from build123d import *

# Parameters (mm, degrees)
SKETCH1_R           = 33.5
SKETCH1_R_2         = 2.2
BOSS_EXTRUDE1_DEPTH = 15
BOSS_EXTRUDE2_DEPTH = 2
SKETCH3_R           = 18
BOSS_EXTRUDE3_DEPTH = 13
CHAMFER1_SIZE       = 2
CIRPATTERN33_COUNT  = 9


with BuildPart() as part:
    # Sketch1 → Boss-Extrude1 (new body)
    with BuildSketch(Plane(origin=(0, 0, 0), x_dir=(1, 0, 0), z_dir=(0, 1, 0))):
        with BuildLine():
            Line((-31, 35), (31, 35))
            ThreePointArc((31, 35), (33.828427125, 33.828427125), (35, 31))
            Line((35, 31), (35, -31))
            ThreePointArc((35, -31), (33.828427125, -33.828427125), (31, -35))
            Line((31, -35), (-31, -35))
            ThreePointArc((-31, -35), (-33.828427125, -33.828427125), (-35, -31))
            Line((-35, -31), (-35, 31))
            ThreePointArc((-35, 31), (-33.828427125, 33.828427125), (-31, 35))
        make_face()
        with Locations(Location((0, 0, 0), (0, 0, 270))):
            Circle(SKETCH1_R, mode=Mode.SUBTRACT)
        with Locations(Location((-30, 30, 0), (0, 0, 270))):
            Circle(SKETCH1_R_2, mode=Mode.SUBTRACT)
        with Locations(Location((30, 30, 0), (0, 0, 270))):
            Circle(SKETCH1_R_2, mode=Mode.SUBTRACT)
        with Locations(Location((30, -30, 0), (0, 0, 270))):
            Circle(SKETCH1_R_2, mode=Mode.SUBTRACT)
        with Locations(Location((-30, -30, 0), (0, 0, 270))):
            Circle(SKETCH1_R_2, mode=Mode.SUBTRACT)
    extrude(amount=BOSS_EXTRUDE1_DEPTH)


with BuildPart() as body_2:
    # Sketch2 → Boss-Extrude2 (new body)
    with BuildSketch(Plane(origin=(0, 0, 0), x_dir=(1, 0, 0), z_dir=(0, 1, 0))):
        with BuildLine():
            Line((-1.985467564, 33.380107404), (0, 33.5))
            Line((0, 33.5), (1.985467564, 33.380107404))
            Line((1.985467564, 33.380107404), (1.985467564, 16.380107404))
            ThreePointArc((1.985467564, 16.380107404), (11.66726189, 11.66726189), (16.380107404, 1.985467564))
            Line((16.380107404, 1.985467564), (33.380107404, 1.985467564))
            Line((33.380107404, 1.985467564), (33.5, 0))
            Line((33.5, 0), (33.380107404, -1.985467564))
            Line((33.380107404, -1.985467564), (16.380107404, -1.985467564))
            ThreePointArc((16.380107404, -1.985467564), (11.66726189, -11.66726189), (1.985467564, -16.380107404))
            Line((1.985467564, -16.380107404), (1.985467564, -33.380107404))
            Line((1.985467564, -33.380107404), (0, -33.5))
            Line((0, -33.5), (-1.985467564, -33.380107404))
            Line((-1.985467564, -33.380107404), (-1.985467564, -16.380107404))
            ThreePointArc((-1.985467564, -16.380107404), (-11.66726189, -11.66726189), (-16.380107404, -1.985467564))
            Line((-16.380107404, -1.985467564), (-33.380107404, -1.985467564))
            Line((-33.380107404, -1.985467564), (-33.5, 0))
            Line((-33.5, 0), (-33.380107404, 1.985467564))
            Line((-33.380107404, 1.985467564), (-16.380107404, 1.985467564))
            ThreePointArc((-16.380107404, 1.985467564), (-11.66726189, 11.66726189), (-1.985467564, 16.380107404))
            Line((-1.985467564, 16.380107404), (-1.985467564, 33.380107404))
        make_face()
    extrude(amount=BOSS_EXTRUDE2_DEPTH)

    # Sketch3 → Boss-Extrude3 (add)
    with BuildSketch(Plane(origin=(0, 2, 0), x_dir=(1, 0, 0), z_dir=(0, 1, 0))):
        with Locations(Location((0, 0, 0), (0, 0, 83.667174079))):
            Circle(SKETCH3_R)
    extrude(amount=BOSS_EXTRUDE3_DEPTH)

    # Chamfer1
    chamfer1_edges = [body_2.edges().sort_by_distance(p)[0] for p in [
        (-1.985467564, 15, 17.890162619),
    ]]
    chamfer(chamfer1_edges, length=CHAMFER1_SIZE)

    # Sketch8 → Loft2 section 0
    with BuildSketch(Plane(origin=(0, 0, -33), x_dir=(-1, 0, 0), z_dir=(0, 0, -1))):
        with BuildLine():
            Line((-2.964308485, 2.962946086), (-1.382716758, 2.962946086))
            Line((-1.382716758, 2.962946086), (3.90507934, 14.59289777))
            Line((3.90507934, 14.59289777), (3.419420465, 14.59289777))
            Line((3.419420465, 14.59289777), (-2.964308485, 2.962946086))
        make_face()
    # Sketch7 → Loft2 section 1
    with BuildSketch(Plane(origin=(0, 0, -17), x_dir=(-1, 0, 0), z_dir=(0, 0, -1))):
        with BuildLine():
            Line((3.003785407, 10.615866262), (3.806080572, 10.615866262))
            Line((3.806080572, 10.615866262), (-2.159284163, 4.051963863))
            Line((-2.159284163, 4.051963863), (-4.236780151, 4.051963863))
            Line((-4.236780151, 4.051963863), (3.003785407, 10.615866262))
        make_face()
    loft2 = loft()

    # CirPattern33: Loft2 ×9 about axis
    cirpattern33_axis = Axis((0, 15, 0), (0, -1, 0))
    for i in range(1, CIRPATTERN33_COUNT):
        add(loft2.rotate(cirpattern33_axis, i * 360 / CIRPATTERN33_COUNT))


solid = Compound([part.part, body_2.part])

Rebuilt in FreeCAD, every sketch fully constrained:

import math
import FreeCAD as App
import Part
import Sketcher
from FreeCAD import Vector


def edges_at(feature, points):
    """Names of the edges that pass closest to the given points."""
    edges = feature.Shape.Edges
    near = lambda p: min(range(len(edges)), key=lambda i: edges[i].distToShape(Part.Vertex(*p))[0])
    return sorted({f"Edge{near(p) + 1}" for p in points})


def add_polygon(sketch, points):
    """Adds a closed chain of lines whose ends are joined by coincident constraints."""
    first, n = sketch.GeometryCount, len(points)
    for a, b in zip(points, points[1:] + points[:1]):
        sketch.addGeometry(Part.LineSegment(App.Vector(*a, 0), App.Vector(*b, 0)), False)
    for i in range(n):
        sketch.addConstraint(Sketcher.Constraint("Coincident", first + i, 2, first + (i + 1) % n, 1))

doc = App.newDocument("Part")
body = doc.addObject("PartDesign::Body", "Body")

sketch1 = doc.addObject("Sketcher::SketchObject", "Sketch")
body.addObject(sketch1)
sketch1.AttachmentSupport = (doc.XZ_Plane, [""])
sketch1.MapMode = "FlatFace"
sketch1.addGeometry([
    Part.LineSegment(Vector(31, -35, 0), Vector(-31, -35, 0)),
    Part.ArcOfCircle(Part.Circle(Vector(-31, -31, 0), Vector(0, 0, 1), 4), math.radians(180), math.radians(270)),
    Part.LineSegment(Vector(-35, -31, 0), Vector(-35, 31, 0)),
    Part.ArcOfCircle(Part.Circle(Vector(-31, 31, 0), Vector(0, 0, 1), 4), math.radians(90), math.radians(180)),
    Part.LineSegment(Vector(-31, 35, 0), Vector(31, 35, 0)),
    Part.ArcOfCircle(Part.Circle(Vector(31, 31, 0), Vector(0, 0, 1), 4), math.radians(0), math.radians(90)),
    Part.LineSegment(Vector(35, 31, 0), Vector(35, -31, 0)),
    Part.ArcOfCircle(Part.Circle(Vector(31, -31, 0), Vector(0, 0, 1), 4), math.radians(-90), math.radians(0)),
    Part.Circle(Vector(30, 30, 0), Vector(0, 0, 1), 2.2),
    Part.Circle(Vector(-30, 30, 0), Vector(0, 0, 1), 2.2),
    Part.Circle(Vector(30, -30, 0), Vector(0, 0, 1), 2.2),
    Part.Circle(Vector(0, 0, 0), Vector(0, 0, 1), 33.5),
    Part.Circle(Vector(-30, -30, 0), Vector(0, 0, 1), 2.2),
], False)
sketch1.addConstraint([
    Sketcher.Constraint("Tangent", 0, 2, 1, 2),
    Sketcher.Constraint("Tangent", 1, 1, 2, 1),
    Sketcher.Constraint("Tangent", 2, 2, 3, 2),
    Sketcher.Constraint("Tangent", 3, 1, 4, 1),
    Sketcher.Constraint("Tangent", 4, 2, 5, 2),
    Sketcher.Constraint("Tangent", 5, 1, 6, 1),
    Sketcher.Constraint("Tangent", 6, 2, 7, 2),
    Sketcher.Constraint("Tangent", 7, 1, 0, 1),
    Sketcher.Constraint("Horizontal", 0),
    Sketcher.Constraint("Vertical", 2),
    Sketcher.Constraint("Horizontal", 4),
    Sketcher.Constraint("Vertical", 6),
    Sketcher.Constraint("Coincident", 11, 3, -1, 1),
    Sketcher.Constraint("Equal", 1, 3),
    Sketcher.Constraint("Equal", 3, 5),
    Sketcher.Constraint("Equal", 5, 7),
    Sketcher.Constraint("Equal", 8, 9),
    Sketcher.Constraint("Equal", 9, 10),
    Sketcher.Constraint("Equal", 10, 12),
    Sketcher.Constraint("Symmetric", 1, 3, 5, 3, -1, 1),
    Sketcher.Constraint("Symmetric", 9, 3, 10, 3, -1, 1),
    Sketcher.Constraint("Symmetric", 8, 3, 12, 3, -1, 1),
    Sketcher.Constraint("Symmetric", 8, 3, 9, 3, -2),
    Sketcher.Constraint("Equal", 4, 2),
    Sketcher.Constraint("Diameter", 11, 67.0),
    Sketcher.Constraint("Radius", 1, 4.0),
    Sketcher.Constraint("Diameter", 8, 4.4),
    Sketcher.Constraint("DistanceX", 0, 2, 0, 1, 62.0),
    Sketcher.Constraint("DistanceX", -1, 1, 8, 3, 30.0),
    Sketcher.Constraint("DistanceY", -1, 1, 8, 3, 30.0),
])
pad1 = doc.addObject("PartDesign::Pad", "Pad")
body.addObject(pad1)
pad1.Profile = sketch1
pad1.Length = 15
pad1.Reversed = True
body2 = doc.addObject("PartDesign::Body", "Body001")

sketch2 = doc.addObject("Sketcher::SketchObject", "Sketch001")
body2.addObject(sketch2)
sketch2.AttachmentSupport = (doc.getObject("XZ_Plane001"), [""])
sketch2.MapMode = "FlatFace"
sketch2.addGeometry([
    Part.LineSegment(Vector(0, -33.5, 0), Vector(-2, -33.4, 0)),
    Part.LineSegment(Vector(-2, -33.4, 0), Vector(-2, -16.4, 0)),
    Part.ArcOfCircle(Part.Circle(Vector(0, 0, 0), Vector(0, 0, 1), 16.5), math.radians(-173), math.radians(-97)),
    Part.LineSegment(Vector(-16.4, -2, 0), Vector(-33.4, -2, 0)),
    Part.LineSegment(Vector(-33.4, -2, 0), Vector(-33.5, 0, 0)),
    Part.LineSegment(Vector(-33.5, 0, 0), Vector(-33.4, 2, 0)),
    Part.LineSegment(Vector(-33.4, 2, 0), Vector(-16.4, 2, 0)),
    Part.ArcOfCircle(Part.Circle(Vector(0, 0, 0), Vector(0, 0, 1), 16.5), math.radians(97), math.radians(173)),
    Part.LineSegment(Vector(-2, 16.4, 0), Vector(-2, 33.4, 0)),
    Part.LineSegment(Vector(-2, 33.4, 0), Vector(0, 33.5, 0)),
    Part.LineSegment(Vector(0, 33.5, 0), Vector(2, 33.4, 0)),
    Part.LineSegment(Vector(2, 33.4, 0), Vector(2, 16.4, 0)),
    Part.ArcOfCircle(Part.Circle(Vector(0, 0, 0), Vector(0, 0, 1), 16.5), math.radians(7), math.radians(83)),
    Part.LineSegment(Vector(16.4, 2, 0), Vector(33.4, 2, 0)),
    Part.LineSegment(Vector(33.4, 2, 0), Vector(33.5, 0, 0)),
    Part.LineSegment(Vector(33.5, 0, 0), Vector(33.4, -2, 0)),
    Part.LineSegment(Vector(33.4, -2, 0), Vector(16.4, -2, 0)),
    Part.ArcOfCircle(Part.Circle(Vector(0, 0, 0), Vector(0, 0, 1), 16.5), math.radians(-83), math.radians(-7)),
    Part.LineSegment(Vector(2, -16.4, 0), Vector(2, -33.4, 0)),
    Part.LineSegment(Vector(2, -33.4, 0), Vector(0, -33.5, 0)),
], False)
sketch2.addConstraint([
    Sketcher.Constraint("Coincident", 0, 2, 1, 1),
    Sketcher.Constraint("Coincident", 1, 2, 2, 2),
    Sketcher.Constraint("Coincident", 2, 1, 3, 1),
    Sketcher.Constraint("Coincident", 3, 2, 4, 1),
    Sketcher.Constraint("Coincident", 4, 2, 5, 1),
    Sketcher.Constraint("Coincident", 5, 2, 6, 1),
    Sketcher.Constraint("Coincident", 6, 2, 7, 2),
    Sketcher.Constraint("Coincident", 7, 1, 8, 1),
    Sketcher.Constraint("Coincident", 8, 2, 9, 1),
    Sketcher.Constraint("Coincident", 9, 2, 10, 1),
    Sketcher.Constraint("Coincident", 10, 2, 11, 1),
    Sketcher.Constraint("Coincident", 11, 2, 12, 2),
    Sketcher.Constraint("Coincident", 12, 1, 13, 1),
    Sketcher.Constraint("Coincident", 13, 2, 14, 1),
    Sketcher.Constraint("Coincident", 14, 2, 15, 1),
    Sketcher.Constraint("Coincident", 15, 2, 16, 1),
    Sketcher.Constraint("Coincident", 16, 2, 17, 2),
    Sketcher.Constraint("Coincident", 17, 1, 18, 1),
    Sketcher.Constraint("Coincident", 18, 2, 19, 1),
    Sketcher.Constraint("Coincident", 19, 2, 0, 1),
    Sketcher.Constraint("Vertical", 1),
    Sketcher.Constraint("Horizontal", 3),
    Sketcher.Constraint("Horizontal", 6),
    Sketcher.Constraint("Vertical", 8),
    Sketcher.Constraint("Vertical", 11),
    Sketcher.Constraint("Horizontal", 13),
    Sketcher.Constraint("Horizontal", 16),
    Sketcher.Constraint("Vertical", 18),
    Sketcher.Constraint("Coincident", 2, 3, -1, 1),
    Sketcher.Constraint("Coincident", 7, 3, -1, 1),
    Sketcher.Constraint("Coincident", 12, 3, -1, 1),
    Sketcher.Constraint("Coincident", 17, 3, -1, 1),
    Sketcher.Constraint("Equal", 2, 7),
    Sketcher.Constraint("Equal", 7, 12),
    Sketcher.Constraint("Equal", 12, 17),
    Sketcher.Constraint("Symmetric", 0, 2, 10, 2, -1, 1),
    Sketcher.Constraint("Symmetric", 3, 2, 13, 2, -1, 1),
    Sketcher.Constraint("Symmetric", 4, 2, 14, 2, -1, 1),
    Sketcher.Constraint("Symmetric", 5, 2, 15, 2, -1, 1),
    Sketcher.Constraint("Symmetric", 8, 2, 18, 2, -1, 1),
    Sketcher.Constraint("Symmetric", 9, 2, 19, 2, -1, 1),
    Sketcher.Constraint("Symmetric", 8, 2, 10, 2, -2),
    Sketcher.Constraint("Symmetric", 5, 2, 13, 2, -2),
    Sketcher.Constraint("PointOnObject", 4, 2, -1),
    Sketcher.Constraint("PointOnObject", 9, 2, -2),
    Sketcher.Constraint("Perpendicular", 0, 5),
    Sketcher.Constraint("Equal", 16, 1),
    Sketcher.Constraint("Equal", 0, 4),
    Sketcher.Constraint("Radius", 2, 16.5),
    Sketcher.Constraint("DistanceX", 3, 2, 3, 1, 17.0),
    Sketcher.Constraint("DistanceX", 4, 2, -1, 1, 33.5),
    Sketcher.Constraint("DistanceX", 2, 1, 1, 2, 14.39464),
])
pad2 = doc.addObject("PartDesign::Pad", "Pad001")
body2.addObject(pad2)
pad2.Profile = sketch2
pad2.Length = 2
pad2.Reversed = True

sketch3 = doc.addObject("Sketcher::SketchObject", "Sketch002")
body2.addObject(sketch3)
sketch3.AttachmentSupport = (doc.getObject("XZ_Plane001"), [""])
sketch3.MapMode = "FlatFace"
sketch3.AttachmentOffset = App.Placement(Vector(0, 0, -2), App.Rotation())
sketch3.addGeometry(Part.Circle(Vector(0, 0, 0), Vector(0, 0, 1), 18), False)
sketch3.addConstraint([
    Sketcher.Constraint("Coincident", 0, 3, -1, 1),
    Sketcher.Constraint("Diameter", 0, 36.0),
])
pad3 = doc.addObject("PartDesign::Pad", "Pad002")
body2.addObject(pad3)
pad3.Profile = sketch3
pad3.Length = 13
pad3.Reversed = True
doc.recompute()

chamfer = doc.addObject("PartDesign::Chamfer", "Chamfer")
body2.addObject(chamfer)
chamfer.Base = (pad3, edges_at(pad3, [(-1.985, 15, 17.89)]))
chamfer.Size = 2

sketch4 = doc.addObject("Sketcher::SketchObject", "Sketch003")
body2.addObject(sketch4)
sketch4.AttachmentSupport = (doc.getObject("XY_Plane001"), [""])
sketch4.MapMode = "FlatFace"
sketch4.AttachmentOffset = App.Placement(Vector(0, 0, -33), App.Rotation())
add_polygon(sketch4, [(2.96, 2.96), (1.38, 2.96), (-3.91, 14.59), (-3.42, 14.59)])
sketch4.addConstraint([
    Sketcher.Constraint("Horizontal", 0),
    Sketcher.Constraint("Horizontal", 2),
    Sketcher.Constraint("DistanceX", 0, 2, 0, 1, 1.581592),
    Sketcher.Constraint("DistanceX", 2, 1, 2, 2, 0.485659),
    Sketcher.Constraint("DistanceX", 1, 2, -1, 1, 3.905079),
    Sketcher.Constraint("DistanceX", -1, 1, 3, 2, 2.964308),
    Sketcher.Constraint("DistanceY", 0, 2, 1, 2, 11.629952),
    Sketcher.Constraint("DistanceY", -1, 1, 0, 2, 2.962946),
])

sketch5 = doc.addObject("Sketcher::SketchObject", "Sketch004")
body2.addObject(sketch5)
sketch5.AttachmentSupport = (doc.getObject("XY_Plane001"), [""])
sketch5.MapMode = "FlatFace"
sketch5.AttachmentOffset = App.Placement(Vector(0, 0, -17), App.Rotation())
add_polygon(sketch5, [(-3.8, 10.6), (-3, 10.6), (4.2, 4.1), (2.2, 4.1)])
sketch5.addConstraint([
    Sketcher.Constraint("Horizontal", 0),
    Sketcher.Constraint("Horizontal", 2),
    Sketcher.Constraint("DistanceX", 0, 1, 0, 2, 0.802295),
    Sketcher.Constraint("DistanceX", 2, 2, 2, 1, 2.077496),
    Sketcher.Constraint("DistanceX", -1, 1, 1, 2, 4.23678),
    Sketcher.Constraint("DistanceX", 3, 2, -1, 1, 3.806081),
    Sketcher.Constraint("Distance", 1, 9.772953),
    Sketcher.Constraint("DistanceY", -1, 1, 0, 2, 10.615866),
])

additiveloft = doc.addObject("PartDesign::AdditiveLoft", "AdditiveLoft")
body2.addObject(additiveloft)
additiveloft.Profile = sketch4
additiveloft.Sections = [sketch5]
doc.recompute()

polarpattern = doc.addObject("PartDesign::PolarPattern", "PolarPattern")
body2.addObject(polarpattern)
polarpattern.Originals = [additiveloft]
polarpattern.Axis = (doc.getObject("Y_Axis001"), [""])
polarpattern.Angle = 360
polarpattern.Occurrences = 9
body2.Tip = polarpattern

doc.recompute()
